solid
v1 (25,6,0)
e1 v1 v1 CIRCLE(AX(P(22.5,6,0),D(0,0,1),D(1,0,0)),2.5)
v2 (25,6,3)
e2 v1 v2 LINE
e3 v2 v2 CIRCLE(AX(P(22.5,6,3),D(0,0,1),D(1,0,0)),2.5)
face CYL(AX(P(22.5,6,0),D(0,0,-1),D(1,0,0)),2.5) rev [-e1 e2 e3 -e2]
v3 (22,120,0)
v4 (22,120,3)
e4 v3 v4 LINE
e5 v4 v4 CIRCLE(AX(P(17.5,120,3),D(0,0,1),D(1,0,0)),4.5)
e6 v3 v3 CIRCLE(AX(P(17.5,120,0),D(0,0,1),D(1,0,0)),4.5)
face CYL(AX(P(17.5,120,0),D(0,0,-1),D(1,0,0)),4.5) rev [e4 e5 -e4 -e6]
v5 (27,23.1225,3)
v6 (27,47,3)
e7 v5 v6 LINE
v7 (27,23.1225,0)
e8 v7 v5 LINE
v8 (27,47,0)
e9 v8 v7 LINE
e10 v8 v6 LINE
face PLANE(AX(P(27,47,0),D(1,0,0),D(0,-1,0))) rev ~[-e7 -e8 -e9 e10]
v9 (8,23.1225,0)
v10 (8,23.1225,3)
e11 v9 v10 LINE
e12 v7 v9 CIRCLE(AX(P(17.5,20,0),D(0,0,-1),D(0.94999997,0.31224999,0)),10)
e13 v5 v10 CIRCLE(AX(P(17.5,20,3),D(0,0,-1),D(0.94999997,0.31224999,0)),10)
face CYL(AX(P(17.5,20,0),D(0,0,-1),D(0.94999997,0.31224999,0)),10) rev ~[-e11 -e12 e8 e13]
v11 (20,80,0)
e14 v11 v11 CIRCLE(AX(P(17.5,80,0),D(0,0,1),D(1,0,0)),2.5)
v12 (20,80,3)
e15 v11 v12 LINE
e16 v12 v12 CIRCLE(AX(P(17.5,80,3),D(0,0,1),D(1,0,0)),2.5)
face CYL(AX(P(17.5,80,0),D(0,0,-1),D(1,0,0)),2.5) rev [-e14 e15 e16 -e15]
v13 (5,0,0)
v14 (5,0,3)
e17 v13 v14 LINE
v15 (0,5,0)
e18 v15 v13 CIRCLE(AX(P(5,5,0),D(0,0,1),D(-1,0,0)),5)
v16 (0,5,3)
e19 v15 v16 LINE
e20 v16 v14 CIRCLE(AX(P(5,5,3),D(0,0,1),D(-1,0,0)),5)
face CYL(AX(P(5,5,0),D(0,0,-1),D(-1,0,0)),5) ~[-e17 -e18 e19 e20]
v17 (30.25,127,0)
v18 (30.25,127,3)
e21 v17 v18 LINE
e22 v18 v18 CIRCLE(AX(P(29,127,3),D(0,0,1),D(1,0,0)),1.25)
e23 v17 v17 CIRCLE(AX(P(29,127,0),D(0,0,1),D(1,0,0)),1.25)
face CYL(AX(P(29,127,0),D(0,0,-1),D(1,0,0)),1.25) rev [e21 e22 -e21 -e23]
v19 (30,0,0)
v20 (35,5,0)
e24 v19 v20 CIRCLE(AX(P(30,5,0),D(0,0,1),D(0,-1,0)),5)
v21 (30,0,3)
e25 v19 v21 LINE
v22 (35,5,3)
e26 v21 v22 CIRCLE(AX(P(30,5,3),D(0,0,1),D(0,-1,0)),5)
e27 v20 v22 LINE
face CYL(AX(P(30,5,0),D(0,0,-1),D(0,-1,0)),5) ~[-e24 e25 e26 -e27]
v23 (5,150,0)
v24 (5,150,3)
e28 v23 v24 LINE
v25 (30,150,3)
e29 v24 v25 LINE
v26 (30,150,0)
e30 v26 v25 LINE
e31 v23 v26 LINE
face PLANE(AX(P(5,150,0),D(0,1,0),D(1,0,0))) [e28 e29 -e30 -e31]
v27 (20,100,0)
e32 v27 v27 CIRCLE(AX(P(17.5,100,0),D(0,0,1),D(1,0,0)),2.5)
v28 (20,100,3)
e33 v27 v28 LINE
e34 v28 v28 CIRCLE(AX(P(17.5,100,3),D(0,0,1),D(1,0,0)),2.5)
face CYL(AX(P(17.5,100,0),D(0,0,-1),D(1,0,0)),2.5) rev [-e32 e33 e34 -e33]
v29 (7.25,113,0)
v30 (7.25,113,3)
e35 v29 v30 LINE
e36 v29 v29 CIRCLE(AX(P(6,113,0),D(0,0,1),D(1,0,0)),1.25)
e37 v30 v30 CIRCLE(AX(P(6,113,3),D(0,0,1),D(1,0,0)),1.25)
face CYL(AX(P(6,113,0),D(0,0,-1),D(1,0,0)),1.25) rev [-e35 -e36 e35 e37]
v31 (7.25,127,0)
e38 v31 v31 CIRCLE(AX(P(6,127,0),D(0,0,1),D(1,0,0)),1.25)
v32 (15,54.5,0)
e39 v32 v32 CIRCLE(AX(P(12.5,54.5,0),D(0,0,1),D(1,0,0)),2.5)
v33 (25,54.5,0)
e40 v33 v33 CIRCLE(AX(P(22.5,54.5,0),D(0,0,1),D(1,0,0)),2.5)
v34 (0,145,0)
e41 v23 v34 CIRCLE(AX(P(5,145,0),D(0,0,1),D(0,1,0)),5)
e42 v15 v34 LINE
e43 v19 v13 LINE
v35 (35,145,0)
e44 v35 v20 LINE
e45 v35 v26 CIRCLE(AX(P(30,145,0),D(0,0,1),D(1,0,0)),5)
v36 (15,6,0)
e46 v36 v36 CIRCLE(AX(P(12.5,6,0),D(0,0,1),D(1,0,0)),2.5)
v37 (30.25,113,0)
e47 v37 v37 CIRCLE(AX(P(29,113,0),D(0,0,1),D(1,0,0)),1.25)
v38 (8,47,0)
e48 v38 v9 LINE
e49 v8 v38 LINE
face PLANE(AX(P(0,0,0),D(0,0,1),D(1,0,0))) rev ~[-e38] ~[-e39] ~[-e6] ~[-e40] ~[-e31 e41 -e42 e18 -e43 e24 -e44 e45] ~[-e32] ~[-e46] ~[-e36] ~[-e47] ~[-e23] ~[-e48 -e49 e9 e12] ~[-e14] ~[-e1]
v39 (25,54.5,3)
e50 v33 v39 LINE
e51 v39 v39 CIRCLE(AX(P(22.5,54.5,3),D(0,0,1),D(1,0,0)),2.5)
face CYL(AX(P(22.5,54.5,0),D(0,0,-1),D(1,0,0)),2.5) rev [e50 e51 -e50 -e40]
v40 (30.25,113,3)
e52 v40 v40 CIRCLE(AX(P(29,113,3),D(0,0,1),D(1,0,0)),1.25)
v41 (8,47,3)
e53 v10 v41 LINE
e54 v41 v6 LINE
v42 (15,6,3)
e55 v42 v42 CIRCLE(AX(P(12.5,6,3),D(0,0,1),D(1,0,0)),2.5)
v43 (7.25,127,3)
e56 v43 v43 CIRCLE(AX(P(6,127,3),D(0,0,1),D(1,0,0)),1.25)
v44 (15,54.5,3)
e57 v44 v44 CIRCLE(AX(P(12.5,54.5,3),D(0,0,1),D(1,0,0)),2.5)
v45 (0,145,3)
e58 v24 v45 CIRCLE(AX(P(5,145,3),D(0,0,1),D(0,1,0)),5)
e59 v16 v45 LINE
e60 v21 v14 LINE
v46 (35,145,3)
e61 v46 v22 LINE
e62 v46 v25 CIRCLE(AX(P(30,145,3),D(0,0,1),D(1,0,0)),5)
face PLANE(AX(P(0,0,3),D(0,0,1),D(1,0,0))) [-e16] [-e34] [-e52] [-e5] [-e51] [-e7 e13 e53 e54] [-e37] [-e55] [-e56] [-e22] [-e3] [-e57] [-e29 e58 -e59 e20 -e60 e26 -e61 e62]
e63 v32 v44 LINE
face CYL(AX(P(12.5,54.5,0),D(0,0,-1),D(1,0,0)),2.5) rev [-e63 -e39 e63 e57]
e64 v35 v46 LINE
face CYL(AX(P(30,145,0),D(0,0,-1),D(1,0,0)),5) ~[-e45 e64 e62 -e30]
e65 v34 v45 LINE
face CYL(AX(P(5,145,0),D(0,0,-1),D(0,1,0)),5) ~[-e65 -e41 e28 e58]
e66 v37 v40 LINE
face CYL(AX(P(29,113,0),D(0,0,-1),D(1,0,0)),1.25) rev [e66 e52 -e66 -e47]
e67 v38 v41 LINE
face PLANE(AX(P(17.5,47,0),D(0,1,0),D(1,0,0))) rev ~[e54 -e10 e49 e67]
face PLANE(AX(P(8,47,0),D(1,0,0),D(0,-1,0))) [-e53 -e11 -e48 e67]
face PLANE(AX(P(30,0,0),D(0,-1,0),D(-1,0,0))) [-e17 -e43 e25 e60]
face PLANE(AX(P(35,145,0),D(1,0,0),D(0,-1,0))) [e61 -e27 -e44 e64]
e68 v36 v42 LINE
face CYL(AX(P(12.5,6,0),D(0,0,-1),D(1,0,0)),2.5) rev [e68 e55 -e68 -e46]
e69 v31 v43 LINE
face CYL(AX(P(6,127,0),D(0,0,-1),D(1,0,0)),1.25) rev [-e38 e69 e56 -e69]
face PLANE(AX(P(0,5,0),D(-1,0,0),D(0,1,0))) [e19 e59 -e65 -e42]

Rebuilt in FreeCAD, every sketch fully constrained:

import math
import FreeCAD as App
import Part
import Sketcher
Q = App.Units.Quantity

doc = App.newDocument("Part")
body = doc.addObject("PartDesign::Body", "Body")

# Sketch on XY plane
sketch1 = body.newObject("Sketcher::SketchObject", "Sketch")
sketch1.AttachmentSupport = (doc.getObject("XY_Plane"), [""])
sketch1.MapMode = "FlatFace"
sketch1.addGeometry([
    Part.LineSegment(App.Vector(0, 145, 0), App.Vector(0, 5, 0)),  # 0
    Part.ArcOfCircle(Part.Circle(App.Vector(5, 5, 0), App.Vector(0, 0, 1), 5), math.radians(180), math.radians(270)),  # 1
    Part.LineSegment(App.Vector(5, 0, 0), App.Vector(30, 0, 0)),  # 2
    Part.ArcOfCircle(Part.Circle(App.Vector(30, 5, 0), App.Vector(0, 0, 1), 5), math.radians(-90), math.radians(0)),  # 3
    Part.LineSegment(App.Vector(35, 5, 0), App.Vector(35, 145, 0)),  # 4
    Part.ArcOfCircle(Part.Circle(App.Vector(30, 145, 0), App.Vector(0, 0, 1), 5), math.radians(0), math.radians(90)),  # 5
    Part.LineSegment(App.Vector(30, 150, 0), App.Vector(5, 150, 0)),  # 6
    Part.ArcOfCircle(Part.Circle(App.Vector(5, 145, 0), App.Vector(0, 0, 1), 5), math.radians(90), math.radians(180)),  # 7
    Part.Circle(App.Vector(12.5, 6, 0), App.Vector(0, 0, 1), 2.5),  # 8
    Part.Circle(App.Vector(12.5, 54.5, 0), App.Vector(0, 0, 1), 2.5),  # 9
    Part.Circle(App.Vector(22.5, 6, 0), App.Vector(0, 0, 1), 2.5),  # 10
    Part.Circle(App.Vector(17.5, 20, 0), App.Vector(0, 0, 1), 6.5),  # 11
    Part.Circle(App.Vector(22.5, 54.5, 0), App.Vector(0, 0, 1), 2.5),  # 12
    Part.Circle(App.Vector(6, 113, 0), App.Vector(0, 0, 1), 1.2),  # 13
    Part.Circle(App.Vector(6, 127, 0), App.Vector(0, 0, 1), 1.2),  # 14
    Part.Circle(App.Vector(17.5, 80, 0), App.Vector(0, 0, 1), 2.5),  # 15
    Part.Circle(App.Vector(17.5, 100, 0), App.Vector(0, 0, 1), 2.5),  # 16
    Part.Circle(App.Vector(17.5, 120, 0), App.Vector(0, 0, 1), 4.5),  # 17
    Part.Circle(App.Vector(29, 113, 0), App.Vector(0, 0, 1), 1.2),  # 18
    Part.Circle(App.Vector(29, 127, 0), App.Vector(0, 0, 1), 1.2),  # 19
], False)
sketch1.addConstraint([
    Sketcher.Constraint("Tangent", 0, 2, 1, 1),
    Sketcher.Constraint("Tangent", 1, 2, 2, 1),
    Sketcher.Constraint("Tangent", 2, 2, 3, 1),
    Sketcher.Constraint("Tangent", 3, 2, 4, 1),
    Sketcher.Constraint("Tangent", 4, 2, 5, 1),
    Sketcher.Constraint("Tangent", 5, 2, 6, 1),
    Sketcher.Constraint("Tangent", 6, 2, 7, 1),
    Sketcher.Constraint("Tangent", 7, 2, 0, 1),
    Sketcher.Constraint("Vertical", 0),
    Sketcher.Constraint("Horizontal", 2),
    Sketcher.Constraint("Vertical", 4),
    Sketcher.Constraint("Horizontal", 6),
    Sketcher.Constraint("Equal", 1, 3),
    Sketcher.Constraint("Equal", 3, 5),
    Sketcher.Constraint("Equal", 5, 7),
    Sketcher.Constraint("Equal", 8, 9),
    Sketcher.Constraint("Equal", 9, 10),
    Sketcher.Constraint("Equal", 10, 12),
    Sketcher.Constraint("Equal", 13, 14),
    Sketcher.Constraint("Equal", 12, 15),
    Sketcher.Constraint("Equal", 15, 16),
    Sketcher.Constraint("Equal", 14, 18),
    Sketcher.Constraint("Equal", 18, 19),
    Sketcher.Constraint("PointOnObject", 0, 2, -2),
    Sketcher.Constraint("PointOnObject", 1, 2, -1),
    Sketcher.Constraint("Horizontal", 8, 3, 10, 3),
    Sketcher.Constraint("Horizontal", 9, 3, 12, 3),
    Sketcher.Constraint("Horizontal", 13, 3, 18, 3),
    Sketcher.Constraint("Horizontal", 14, 3, 19, 3),
    Sketcher.Constraint("Vertical", 8, 3, 9, 3),
    Sketcher.Constraint("Vertical", 10, 3, 12, 3),
    Sketcher.Constraint("Vertical", 13, 3, 14, 3),
    Sketcher.Constraint("Vertical", 11, 3, 15, 3),
    Sketcher.Constraint("Vertical", 15, 3, 16, 3),
    Sketcher.Constraint("Vertical", 16, 3, 17, 3),
    Sketcher.Constraint("Vertical", 18, 3, 19, 3),
    Sketcher.Constraint("Diameter", 8, Q("5 mm")),
    Sketcher.Constraint("Diameter", 11, Q("13 mm")),
    Sketcher.Constraint("Diameter", 17, Q("9 mm")),
    Sketcher.Constraint("Radius", 1, Q("5 mm")),
    Sketcher.Constraint("Diameter", 13, Q("2.5 mm")),
    Sketcher.Constraint("DistanceX", 2, 1, 2, 2, Q("25 mm")),
    Sketcher.Constraint("DistanceY", 0, 2, 0, 1, Q("140 mm")),
    Sketcher.Constraint("DistanceY", -1, 1, 8, 3, Q("6 mm")),
    Sketcher.Constraint("DistanceY", -1, 1, 11, 3, Q("20 mm")),
    Sketcher.Constraint("DistanceX", -1, 1, 13, 3, Q("6 mm")),
    Sketcher.Constraint("DistanceY", -1, 1, 13, 3, Q("113 mm")),
    Sketcher.Constraint("DistanceY", -1, 1, 14, 3, Q("127 mm")),
    Sketcher.Constraint("DistanceY", -1, 1, 15, 3, Q("80 mm")),
    Sketcher.Constraint("DistanceY", -1, 1, 16, 3, Q("100 mm")),
    Sketcher.Constraint("DistanceY", -1, 1, 17, 3, Q("120 mm")),
    Sketcher.Constraint("DistanceX", -1, 1, 18, 3, Q("29 mm")),
    Sketcher.Constraint("DistanceX", 8, 3, 10, 3, Q("10 mm")),
    Sketcher.Constraint("DistanceX", 8, 3, 11, 3, Q("5 mm")),
    Sketcher.Constraint("DistanceX", -1, 1, 8, 3, Q("12.5 mm")),
    Sketcher.Constraint("DistanceY", -1, 1, 9, 3, Q("54.5 mm")),
])
pad1 = body.newObject("PartDesign::Pad", "Pad")
pad1.Profile = sketch1
pad1.Length = 3

# Sketch on XY plane
sketch2 = body.newObject("Sketcher::SketchObject", "Sketch001")
sketch2.AttachmentSupport = (doc.getObject("XY_Plane"), [""])
sketch2.MapMode = "FlatFace"
sketch2.addGeometry([
    Part.LineSegment(App.Vector(27, 47, 0), App.Vector(27, 23, 0)),  # 0
    Part.ArcOfCircle(Part.Circle(App.Vector(18, 20, 0), App.Vector(0, 0, 1), 10), math.radians(162), math.radians(378)),  # 1
    Part.LineSegment(App.Vector(8, 23, 0), App.Vector(8, 47, 0)),  # 2
    Part.LineSegment(App.Vector(8, 47, 0), App.Vector(27, 47, 0)),  # 3
    Part.Circle(App.Vector(18, 20, 0), App.Vector(0, 0, 1), 6),  # 4
], False)
sketch2.addConstraint([
    Sketcher.Constraint("Coincident", 0, 2, 1, 2),
    Sketcher.Constraint("Coincident", 1, 1, 2, 1),
    Sketcher.Constraint("Coincident", 2, 2, 3, 1),
    Sketcher.Constraint("Coincident", 3, 2, 0, 1),
    Sketcher.Constraint("Vertical", 0),
    Sketcher.Constraint("Vertical", 2),
    Sketcher.Constraint("Horizontal", 3),
    Sketcher.Constraint("Coincident", 4, 3, 1, 3),
    Sketcher.Constraint("Horizontal", 0, 2, 1, 1),
    Sketcher.Constraint("Diameter", 4, Q("13 mm")),
    Sketcher.Constraint("Radius", 1, Q("10 mm")),
    Sketcher.Constraint("DistanceX", 3, 1, 3, 2, Q("19 mm")),
    Sketcher.Constraint("DistanceY", -1, 1, 1, 3, Q("20 mm")),
    Sketcher.Constraint("DistanceX", -1, 1, 0, 2, Q("27 mm")),
    Sketcher.Constraint("DistanceY", -1, 1, 2, 2, Q("47 mm")),
])
pocket1 = body.newObject("PartDesign::Pocket", "Pocket")
pocket1.Profile = sketch2
pocket1.Length = 10
pocket1.Reversed = True

doc.recompute()
